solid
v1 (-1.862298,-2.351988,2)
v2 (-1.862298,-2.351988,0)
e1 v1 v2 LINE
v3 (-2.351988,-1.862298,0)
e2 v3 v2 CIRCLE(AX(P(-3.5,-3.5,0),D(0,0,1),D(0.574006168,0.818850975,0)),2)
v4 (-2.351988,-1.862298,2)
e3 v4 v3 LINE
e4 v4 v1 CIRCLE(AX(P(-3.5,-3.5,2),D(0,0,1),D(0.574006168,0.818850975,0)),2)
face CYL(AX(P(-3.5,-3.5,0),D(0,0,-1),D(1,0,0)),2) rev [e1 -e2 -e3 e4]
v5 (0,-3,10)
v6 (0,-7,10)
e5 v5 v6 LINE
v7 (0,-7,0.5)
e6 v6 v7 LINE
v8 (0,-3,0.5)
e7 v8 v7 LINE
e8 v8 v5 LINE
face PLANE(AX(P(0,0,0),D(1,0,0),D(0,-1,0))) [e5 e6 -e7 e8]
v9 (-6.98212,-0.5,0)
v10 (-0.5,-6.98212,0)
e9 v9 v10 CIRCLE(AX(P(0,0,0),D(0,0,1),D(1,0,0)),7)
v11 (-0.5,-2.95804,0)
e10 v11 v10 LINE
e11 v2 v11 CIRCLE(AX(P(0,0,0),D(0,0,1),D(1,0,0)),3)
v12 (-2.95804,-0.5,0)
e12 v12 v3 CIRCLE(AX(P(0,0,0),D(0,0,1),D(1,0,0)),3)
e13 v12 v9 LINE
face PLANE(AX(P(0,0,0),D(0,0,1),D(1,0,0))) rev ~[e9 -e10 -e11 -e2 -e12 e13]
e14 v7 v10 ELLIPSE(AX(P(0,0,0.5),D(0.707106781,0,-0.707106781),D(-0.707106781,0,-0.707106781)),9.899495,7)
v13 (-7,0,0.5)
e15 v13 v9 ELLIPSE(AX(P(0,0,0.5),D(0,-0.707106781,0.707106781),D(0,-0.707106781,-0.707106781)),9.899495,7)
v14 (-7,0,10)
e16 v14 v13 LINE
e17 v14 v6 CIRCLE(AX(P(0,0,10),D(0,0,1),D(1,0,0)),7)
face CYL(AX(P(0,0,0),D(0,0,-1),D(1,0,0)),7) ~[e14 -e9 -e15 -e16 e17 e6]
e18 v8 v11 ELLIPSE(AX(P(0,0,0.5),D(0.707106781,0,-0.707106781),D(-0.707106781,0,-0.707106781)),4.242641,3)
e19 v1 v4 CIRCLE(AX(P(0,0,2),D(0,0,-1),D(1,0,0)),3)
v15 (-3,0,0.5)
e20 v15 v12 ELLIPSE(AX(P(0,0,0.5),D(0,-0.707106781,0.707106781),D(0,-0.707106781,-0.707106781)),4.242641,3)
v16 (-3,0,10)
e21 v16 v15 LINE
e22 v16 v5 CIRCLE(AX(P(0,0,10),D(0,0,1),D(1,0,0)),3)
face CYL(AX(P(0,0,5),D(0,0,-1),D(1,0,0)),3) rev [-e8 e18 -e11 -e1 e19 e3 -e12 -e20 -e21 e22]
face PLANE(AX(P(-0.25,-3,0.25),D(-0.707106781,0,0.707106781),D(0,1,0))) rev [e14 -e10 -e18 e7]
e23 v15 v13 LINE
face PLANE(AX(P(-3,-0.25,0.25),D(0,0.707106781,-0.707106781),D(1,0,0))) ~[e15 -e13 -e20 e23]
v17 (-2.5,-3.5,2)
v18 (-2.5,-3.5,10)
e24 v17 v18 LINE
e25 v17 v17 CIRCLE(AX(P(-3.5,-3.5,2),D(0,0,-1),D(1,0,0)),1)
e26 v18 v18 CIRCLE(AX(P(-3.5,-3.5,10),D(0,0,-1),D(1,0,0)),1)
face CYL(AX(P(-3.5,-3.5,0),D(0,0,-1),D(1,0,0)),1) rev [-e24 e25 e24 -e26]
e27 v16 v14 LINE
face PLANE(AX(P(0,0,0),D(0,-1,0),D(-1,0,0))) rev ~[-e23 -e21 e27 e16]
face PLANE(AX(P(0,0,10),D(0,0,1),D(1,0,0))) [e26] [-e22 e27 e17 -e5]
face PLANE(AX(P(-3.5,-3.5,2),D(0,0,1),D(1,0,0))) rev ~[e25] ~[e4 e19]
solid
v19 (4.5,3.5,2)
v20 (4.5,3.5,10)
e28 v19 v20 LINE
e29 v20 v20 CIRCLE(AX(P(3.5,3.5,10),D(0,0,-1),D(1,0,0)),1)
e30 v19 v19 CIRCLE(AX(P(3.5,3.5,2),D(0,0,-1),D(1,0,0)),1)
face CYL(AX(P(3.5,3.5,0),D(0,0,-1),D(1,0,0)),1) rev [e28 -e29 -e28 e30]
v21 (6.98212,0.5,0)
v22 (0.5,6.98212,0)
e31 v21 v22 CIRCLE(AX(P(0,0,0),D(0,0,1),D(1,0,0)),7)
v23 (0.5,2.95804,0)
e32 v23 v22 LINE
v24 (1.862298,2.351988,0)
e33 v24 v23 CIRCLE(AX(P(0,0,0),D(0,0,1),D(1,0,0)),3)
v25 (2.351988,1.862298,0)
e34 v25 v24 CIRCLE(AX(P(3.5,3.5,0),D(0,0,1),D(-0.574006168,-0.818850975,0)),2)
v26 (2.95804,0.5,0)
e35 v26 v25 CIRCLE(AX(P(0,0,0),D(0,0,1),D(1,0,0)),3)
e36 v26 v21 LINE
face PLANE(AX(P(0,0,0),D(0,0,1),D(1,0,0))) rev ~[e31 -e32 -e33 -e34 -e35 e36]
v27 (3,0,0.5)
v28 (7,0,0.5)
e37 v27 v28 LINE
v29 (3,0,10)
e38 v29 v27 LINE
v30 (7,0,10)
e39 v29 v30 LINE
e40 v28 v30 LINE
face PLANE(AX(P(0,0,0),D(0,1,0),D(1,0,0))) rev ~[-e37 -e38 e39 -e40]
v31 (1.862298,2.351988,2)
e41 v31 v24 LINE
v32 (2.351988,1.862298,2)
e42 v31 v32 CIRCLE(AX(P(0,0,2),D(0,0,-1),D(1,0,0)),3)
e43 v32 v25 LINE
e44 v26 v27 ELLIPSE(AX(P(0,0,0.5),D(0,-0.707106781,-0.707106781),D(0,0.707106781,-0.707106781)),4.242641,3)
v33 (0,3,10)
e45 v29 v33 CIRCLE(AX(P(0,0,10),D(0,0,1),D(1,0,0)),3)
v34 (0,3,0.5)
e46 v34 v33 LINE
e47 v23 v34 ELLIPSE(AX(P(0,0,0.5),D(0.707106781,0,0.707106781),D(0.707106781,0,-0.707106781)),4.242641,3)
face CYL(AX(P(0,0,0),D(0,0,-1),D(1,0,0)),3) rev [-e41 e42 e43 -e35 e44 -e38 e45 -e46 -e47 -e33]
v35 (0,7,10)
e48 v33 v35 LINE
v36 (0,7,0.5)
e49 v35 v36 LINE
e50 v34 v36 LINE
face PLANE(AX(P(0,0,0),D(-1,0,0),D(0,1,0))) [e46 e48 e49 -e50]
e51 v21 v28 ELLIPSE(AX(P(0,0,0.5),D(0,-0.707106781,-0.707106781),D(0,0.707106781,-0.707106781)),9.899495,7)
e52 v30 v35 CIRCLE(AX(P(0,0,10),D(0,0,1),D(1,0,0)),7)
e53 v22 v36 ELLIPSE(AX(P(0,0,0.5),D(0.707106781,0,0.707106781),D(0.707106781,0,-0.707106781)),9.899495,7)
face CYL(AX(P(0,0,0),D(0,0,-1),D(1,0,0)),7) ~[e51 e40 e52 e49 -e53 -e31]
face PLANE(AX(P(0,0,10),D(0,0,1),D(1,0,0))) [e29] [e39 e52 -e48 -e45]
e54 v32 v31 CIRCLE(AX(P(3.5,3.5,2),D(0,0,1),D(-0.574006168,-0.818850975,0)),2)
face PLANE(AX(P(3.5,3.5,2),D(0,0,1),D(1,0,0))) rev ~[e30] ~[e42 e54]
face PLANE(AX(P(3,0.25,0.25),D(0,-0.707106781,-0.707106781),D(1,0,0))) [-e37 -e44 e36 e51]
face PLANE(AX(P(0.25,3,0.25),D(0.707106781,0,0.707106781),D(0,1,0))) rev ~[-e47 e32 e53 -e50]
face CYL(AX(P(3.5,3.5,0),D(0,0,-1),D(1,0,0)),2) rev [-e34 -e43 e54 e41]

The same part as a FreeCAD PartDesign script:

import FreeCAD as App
import Part
import Sketcher


def edges_at(feature, points):
    """Names of the edges that pass closest to the given points."""
    edges = feature.Shape.Edges
    near = lambda p: min(range(len(edges)), key=lambda i: edges[i].distToShape(Part.Vertex(*p))[0])
    return sorted({f"Edge{near(p) + 1}" for p in points})


def add_polygon(sketch, points):
    """Adds a closed chain of lines whose ends are joined by coincident constraints."""
    first, n = sketch.GeometryCount, len(points)
    for a, b in zip(points, points[1:] + points[:1]):
        sketch.addGeometry(Part.LineSegment(App.Vector(*a, 0), App.Vector(*b, 0)), False)
    for i in range(n):
        sketch.addConstraint(Sketcher.Constraint("Coincident", first + i, 2, first + (i + 1) % n, 1))

doc = App.newDocument("Part")
body = doc.addObject("PartDesign::Body", "Body")

# Sketch on XY plane
sketch1 = body.newObject("Sketcher::SketchObject", "Sketch")
sketch1.AttachmentSupport = (doc.getObject("XY_Plane"), [""])
sketch1.MapMode = "FlatFace"
sketch1.addGeometry(Part.Circle(App.Vector(-3.5, -3.5, 0), App.Vector(0, 0, 1), 1), False)
sketch1.addConstraint(Sketcher.Constraint("Diameter", 0, 2.0))
sketch1.addConstraint(Sketcher.Constraint("DistanceX", 0, 3, -1, 1, 3.5))
sketch1.addConstraint(Sketcher.Constraint("DistanceY", 0, 3, -1, 1, 3.5))
pad1 = body.newObject("PartDesign::Pad", "Pad")
pad1.Profile = sketch1
pad1.Length = 20
body2 = doc.addObject("PartDesign::Body", "Body001")
body2.AllowCompound = True

# Sketch on XY plane
sketch2 = body2.newObject("Sketcher::SketchObject", "Sketch001")
sketch2.AttachmentSupport = (doc.getObject("XY_Plane001"), [""])
sketch2.MapMode = "FlatFace"
sketch2.addGeometry(Part.Circle(App.Vector(3.5, 3.5, 0), App.Vector(0, 0, 1), 1), False)
sketch2.addConstraint(Sketcher.Constraint("Diameter", 0, 2.0))
sketch2.addConstraint(Sketcher.Constraint("DistanceX", -1, 1, 0, 3, 3.5))
sketch2.addConstraint(Sketcher.Constraint("DistanceY", -1, 1, 0, 3, 3.5))
pad2 = body2.newObject("PartDesign::Pad", "Pad001")
pad2.Profile = sketch2
pad2.Length = 20
doc.recompute()

boolean = body2.newObject("PartDesign::Boolean", "Boolean")
boolean.Type = "Fuse"
boolean.addObjects([body])
body3 = doc.addObject("PartDesign::Body", "Body002")

# Sketch on XY plane
sketch3 = body3.newObject("Sketcher::SketchObject", "Sketch002")
sketch3.AttachmentSupport = (doc.getObject("XY_Plane002"), [""])
sketch3.MapMode = "FlatFace"
sketch3.addGeometry(Part.Circle(App.Vector(-3.5, -3.5, 0), App.Vector(0, 0, 1), 2), False)
sketch3.addConstraint(Sketcher.Constraint("Diameter", 0, 4.0))
sketch3.addConstraint(Sketcher.Constraint("DistanceX", 0, 3, -1, 1, 3.5))
sketch3.addConstraint(Sketcher.Constraint("DistanceY", 0, 3, -1, 1, 3.5))
pad3 = body3.newObject("PartDesign::Pad", "Pad002")
pad3.Profile = sketch3
pad3.Length = 2
body4 = doc.addObject("PartDesign::Body", "Body003")
body4.AllowCompound = True

# Sketch on XY plane
sketch4 = body4.newObject("Sketcher::SketchObject", "Sketch003")
sketch4.AttachmentSupport = (doc.getObject("XY_Plane003"), [""])
sketch4.MapMode = "FlatFace"
sketch4.addGeometry(Part.Circle(App.Vector(3.5, 3.5, 0), App.Vector(0, 0, 1), 2), False)
sketch4.addConstraint(Sketcher.Constraint("Diameter", 0, 4.0))
sketch4.addConstraint(Sketcher.Constraint("DistanceX", -1, 1, 0, 3, 3.5))
sketch4.addConstraint(Sketcher.Constraint("DistanceY", -1, 1, 0, 3, 3.5))
pad4 = body4.newObject("PartDesign::Pad", "Pad003")
pad4.Profile = sketch4
pad4.Length = 2
doc.recompute()

boolean2 = body4.newObject("PartDesign::Boolean", "Boolean001")
boolean2.Type = "Fuse"
boolean2.addObjects([body3])
body5 = doc.addObject("PartDesign::Body", "Body004")

# Sketch on XY plane
sketch5 = body5.newObject("Sketcher::SketchObject", "Sketch004")
sketch5.AttachmentSupport = (doc.getObject("XY_Plane004"), [""])
sketch5.MapMode = "FlatFace"
sketch5.AttachmentOffset = App.Placement(App.Vector(0, 0, 5), App.Rotation())
sketch5.addGeometry(Part.Circle(App.Vector(0, 0, 0), App.Vector(0, 0, 1), 3), False)
sketch5.addConstraint(Sketcher.Constraint("Coincident", 0, 3, -1, 1))
sketch5.addConstraint(Sketcher.Constraint("Diameter", 0, 6.0))
pad5 = body5.newObject("PartDesign::Pad", "Pad004")
pad5.Profile = sketch5
pad5.Length = 5
body6 = doc.addObject("PartDesign::Body", "Body005")

# Sketch on XY plane
sketch6 = body6.newObject("Sketcher::SketchObject", "Sketch005")
sketch6.AttachmentSupport = (doc.getObject("XY_Plane005"), [""])
sketch6.MapMode = "FlatFace"
sketch6.addGeometry(Part.Circle(App.Vector(0, 0, 0), App.Vector(0, 0, 1), 3), False)
sketch6.addConstraint(Sketcher.Constraint("Coincident", 0, 3, -1, 1))
sketch6.addConstraint(Sketcher.Constraint("Diameter", 0, 6.0))
pad6 = body6.newObject("PartDesign::Pad", "Pad005")
pad6.Profile = sketch6
pad6.Length = 5
body7 = doc.addObject("PartDesign::Body", "Body006")

# Sketch on XY plane
sketch7 = body7.newObject("Sketcher::SketchObject", "Sketch006")
sketch7.AttachmentSupport = (doc.getObject("XY_Plane006"), [""])
sketch7.MapMode = "FlatFace"
add_polygon(sketch7, [(-20, 0), (0, 0), (0, 10), (-20, 10)])  # lines 0-3
sketch7.addConstraint(Sketcher.Constraint("Horizontal", 0))
sketch7.addConstraint(Sketcher.Constraint("Vertical", 1))
sketch7.addConstraint(Sketcher.Constraint("Horizontal", 2))
sketch7.addConstraint(Sketcher.Constraint("Vertical", 3))
sketch7.addConstraint(Sketcher.Constraint("Coincident", 0, 2, -1, 1))
sketch7.addConstraint(Sketcher.Constraint("DistanceX", 0, 1, 0, 2, 20.0))
sketch7.addConstraint(Sketcher.Constraint("DistanceY", 1, 1, 1, 2, 10.0))
pad7 = body7.newObject("PartDesign::Pad", "Pad006")
pad7.Profile = sketch7
pad7.Length = 10
body8 = doc.addObject("PartDesign::Body", "Body007")
body8.AllowCompound = True

# Sketch on XY plane
sketch8 = body8.newObject("Sketcher::SketchObject", "Sketch007")
sketch8.AttachmentSupport = (doc.getObject("XY_Plane007"), [""])
sketch8.MapMode = "FlatFace"
add_polygon(sketch8, [(20, 0), (0, 0), (0, -10), (20, -10)])  # lines 0-3
sketch8.addConstraint(Sketcher.Constraint("Horizontal", 0))
sketch8.addConstraint(Sketcher.Constraint("Vertical", 1))
sketch8.addConstraint(Sketcher.Constraint("Horizontal", 2))
sketch8.addConstraint(Sketcher.Constraint("Vertical", 3))
sketch8.addConstraint(Sketcher.Constraint("Coincident", 0, 2, -1, 1))
sketch8.addConstraint(Sketcher.Constraint("DistanceX", 0, 2, 0, 1, 20.0))
sketch8.addConstraint(Sketcher.Constraint("DistanceY", 1, 2, 1, 1, 10.0))
pad8 = body8.newObject("PartDesign::Pad", "Pad007")
pad8.Profile = sketch8
pad8.Length = 10
doc.recompute()

boolean3 = body8.newObject("PartDesign::Boolean", "Boolean002")
boolean3.Type = "Fuse"
boolean3.addObjects([body7])
body9 = doc.addObject("PartDesign::Body", "Body008")
body9.AllowCompound = True

# Sketch on XY plane
sketch9 = body9.newObject("Sketcher::SketchObject", "Sketch008")
sketch9.AttachmentSupport = (doc.getObject("XY_Plane008"), [""])
sketch9.MapMode = "FlatFace"
sketch9.addGeometry(Part.Circle(App.Vector(0, 0, 0), App.Vector(0, 0, 1), 7), False)
sketch9.addGeometry(Part.Circle(App.Vector(0, 0, 0), App.Vector(0, 0, 1), 1), False)
sketch9.addConstraint(Sketcher.Constraint("Coincident", 0, 3, -1, 1))
sketch9.addConstraint(Sketcher.Constraint("Coincident", 1, 3, -1, 1))
sketch9.addConstraint(Sketcher.Constraint("Diameter", 0, 14.0))
sketch9.addConstraint(Sketcher.Constraint("Diameter", 1, 2.0))
pad9 = body9.newObject("PartDesign::Pad", "Pad008")
pad9.Profile = sketch9
pad9.Length = 10
doc.recompute()

boolean4 = body9.newObject("PartDesign::Boolean", "Boolean003")
boolean4.Type = "Cut"
boolean4.addObjects([body8])
doc.recompute()

boolean5 = body9.newObject("PartDesign::Boolean", "Boolean004")
boolean5.Type = "Cut"
boolean5.addObjects([body6])
doc.recompute()

boolean6 = body9.newObject("PartDesign::Boolean", "Boolean005")
boolean6.Type = "Cut"
boolean6.addObjects([body5])
doc.recompute()

boolean7 = body9.newObject("PartDesign::Boolean", "Boolean006")
boolean7.Type = "Cut"
boolean7.addObjects([body4])
doc.recompute()

boolean8 = body9.newObject("PartDesign::Boolean", "Boolean007")
boolean8.Type = "Cut"
boolean8.addObjects([body2])
doc.recompute()

chamfer = body9.newObject("PartDesign::Chamfer", "Chamfer")
chamfer.Base = (boolean8, edges_at(boolean8, [
    (0, 5, 0),
    (5, 0, 0),
    (0, -5, 0),
    (-5, 0, 0),
]))
chamfer.Size = 0.5

doc.recompute()
